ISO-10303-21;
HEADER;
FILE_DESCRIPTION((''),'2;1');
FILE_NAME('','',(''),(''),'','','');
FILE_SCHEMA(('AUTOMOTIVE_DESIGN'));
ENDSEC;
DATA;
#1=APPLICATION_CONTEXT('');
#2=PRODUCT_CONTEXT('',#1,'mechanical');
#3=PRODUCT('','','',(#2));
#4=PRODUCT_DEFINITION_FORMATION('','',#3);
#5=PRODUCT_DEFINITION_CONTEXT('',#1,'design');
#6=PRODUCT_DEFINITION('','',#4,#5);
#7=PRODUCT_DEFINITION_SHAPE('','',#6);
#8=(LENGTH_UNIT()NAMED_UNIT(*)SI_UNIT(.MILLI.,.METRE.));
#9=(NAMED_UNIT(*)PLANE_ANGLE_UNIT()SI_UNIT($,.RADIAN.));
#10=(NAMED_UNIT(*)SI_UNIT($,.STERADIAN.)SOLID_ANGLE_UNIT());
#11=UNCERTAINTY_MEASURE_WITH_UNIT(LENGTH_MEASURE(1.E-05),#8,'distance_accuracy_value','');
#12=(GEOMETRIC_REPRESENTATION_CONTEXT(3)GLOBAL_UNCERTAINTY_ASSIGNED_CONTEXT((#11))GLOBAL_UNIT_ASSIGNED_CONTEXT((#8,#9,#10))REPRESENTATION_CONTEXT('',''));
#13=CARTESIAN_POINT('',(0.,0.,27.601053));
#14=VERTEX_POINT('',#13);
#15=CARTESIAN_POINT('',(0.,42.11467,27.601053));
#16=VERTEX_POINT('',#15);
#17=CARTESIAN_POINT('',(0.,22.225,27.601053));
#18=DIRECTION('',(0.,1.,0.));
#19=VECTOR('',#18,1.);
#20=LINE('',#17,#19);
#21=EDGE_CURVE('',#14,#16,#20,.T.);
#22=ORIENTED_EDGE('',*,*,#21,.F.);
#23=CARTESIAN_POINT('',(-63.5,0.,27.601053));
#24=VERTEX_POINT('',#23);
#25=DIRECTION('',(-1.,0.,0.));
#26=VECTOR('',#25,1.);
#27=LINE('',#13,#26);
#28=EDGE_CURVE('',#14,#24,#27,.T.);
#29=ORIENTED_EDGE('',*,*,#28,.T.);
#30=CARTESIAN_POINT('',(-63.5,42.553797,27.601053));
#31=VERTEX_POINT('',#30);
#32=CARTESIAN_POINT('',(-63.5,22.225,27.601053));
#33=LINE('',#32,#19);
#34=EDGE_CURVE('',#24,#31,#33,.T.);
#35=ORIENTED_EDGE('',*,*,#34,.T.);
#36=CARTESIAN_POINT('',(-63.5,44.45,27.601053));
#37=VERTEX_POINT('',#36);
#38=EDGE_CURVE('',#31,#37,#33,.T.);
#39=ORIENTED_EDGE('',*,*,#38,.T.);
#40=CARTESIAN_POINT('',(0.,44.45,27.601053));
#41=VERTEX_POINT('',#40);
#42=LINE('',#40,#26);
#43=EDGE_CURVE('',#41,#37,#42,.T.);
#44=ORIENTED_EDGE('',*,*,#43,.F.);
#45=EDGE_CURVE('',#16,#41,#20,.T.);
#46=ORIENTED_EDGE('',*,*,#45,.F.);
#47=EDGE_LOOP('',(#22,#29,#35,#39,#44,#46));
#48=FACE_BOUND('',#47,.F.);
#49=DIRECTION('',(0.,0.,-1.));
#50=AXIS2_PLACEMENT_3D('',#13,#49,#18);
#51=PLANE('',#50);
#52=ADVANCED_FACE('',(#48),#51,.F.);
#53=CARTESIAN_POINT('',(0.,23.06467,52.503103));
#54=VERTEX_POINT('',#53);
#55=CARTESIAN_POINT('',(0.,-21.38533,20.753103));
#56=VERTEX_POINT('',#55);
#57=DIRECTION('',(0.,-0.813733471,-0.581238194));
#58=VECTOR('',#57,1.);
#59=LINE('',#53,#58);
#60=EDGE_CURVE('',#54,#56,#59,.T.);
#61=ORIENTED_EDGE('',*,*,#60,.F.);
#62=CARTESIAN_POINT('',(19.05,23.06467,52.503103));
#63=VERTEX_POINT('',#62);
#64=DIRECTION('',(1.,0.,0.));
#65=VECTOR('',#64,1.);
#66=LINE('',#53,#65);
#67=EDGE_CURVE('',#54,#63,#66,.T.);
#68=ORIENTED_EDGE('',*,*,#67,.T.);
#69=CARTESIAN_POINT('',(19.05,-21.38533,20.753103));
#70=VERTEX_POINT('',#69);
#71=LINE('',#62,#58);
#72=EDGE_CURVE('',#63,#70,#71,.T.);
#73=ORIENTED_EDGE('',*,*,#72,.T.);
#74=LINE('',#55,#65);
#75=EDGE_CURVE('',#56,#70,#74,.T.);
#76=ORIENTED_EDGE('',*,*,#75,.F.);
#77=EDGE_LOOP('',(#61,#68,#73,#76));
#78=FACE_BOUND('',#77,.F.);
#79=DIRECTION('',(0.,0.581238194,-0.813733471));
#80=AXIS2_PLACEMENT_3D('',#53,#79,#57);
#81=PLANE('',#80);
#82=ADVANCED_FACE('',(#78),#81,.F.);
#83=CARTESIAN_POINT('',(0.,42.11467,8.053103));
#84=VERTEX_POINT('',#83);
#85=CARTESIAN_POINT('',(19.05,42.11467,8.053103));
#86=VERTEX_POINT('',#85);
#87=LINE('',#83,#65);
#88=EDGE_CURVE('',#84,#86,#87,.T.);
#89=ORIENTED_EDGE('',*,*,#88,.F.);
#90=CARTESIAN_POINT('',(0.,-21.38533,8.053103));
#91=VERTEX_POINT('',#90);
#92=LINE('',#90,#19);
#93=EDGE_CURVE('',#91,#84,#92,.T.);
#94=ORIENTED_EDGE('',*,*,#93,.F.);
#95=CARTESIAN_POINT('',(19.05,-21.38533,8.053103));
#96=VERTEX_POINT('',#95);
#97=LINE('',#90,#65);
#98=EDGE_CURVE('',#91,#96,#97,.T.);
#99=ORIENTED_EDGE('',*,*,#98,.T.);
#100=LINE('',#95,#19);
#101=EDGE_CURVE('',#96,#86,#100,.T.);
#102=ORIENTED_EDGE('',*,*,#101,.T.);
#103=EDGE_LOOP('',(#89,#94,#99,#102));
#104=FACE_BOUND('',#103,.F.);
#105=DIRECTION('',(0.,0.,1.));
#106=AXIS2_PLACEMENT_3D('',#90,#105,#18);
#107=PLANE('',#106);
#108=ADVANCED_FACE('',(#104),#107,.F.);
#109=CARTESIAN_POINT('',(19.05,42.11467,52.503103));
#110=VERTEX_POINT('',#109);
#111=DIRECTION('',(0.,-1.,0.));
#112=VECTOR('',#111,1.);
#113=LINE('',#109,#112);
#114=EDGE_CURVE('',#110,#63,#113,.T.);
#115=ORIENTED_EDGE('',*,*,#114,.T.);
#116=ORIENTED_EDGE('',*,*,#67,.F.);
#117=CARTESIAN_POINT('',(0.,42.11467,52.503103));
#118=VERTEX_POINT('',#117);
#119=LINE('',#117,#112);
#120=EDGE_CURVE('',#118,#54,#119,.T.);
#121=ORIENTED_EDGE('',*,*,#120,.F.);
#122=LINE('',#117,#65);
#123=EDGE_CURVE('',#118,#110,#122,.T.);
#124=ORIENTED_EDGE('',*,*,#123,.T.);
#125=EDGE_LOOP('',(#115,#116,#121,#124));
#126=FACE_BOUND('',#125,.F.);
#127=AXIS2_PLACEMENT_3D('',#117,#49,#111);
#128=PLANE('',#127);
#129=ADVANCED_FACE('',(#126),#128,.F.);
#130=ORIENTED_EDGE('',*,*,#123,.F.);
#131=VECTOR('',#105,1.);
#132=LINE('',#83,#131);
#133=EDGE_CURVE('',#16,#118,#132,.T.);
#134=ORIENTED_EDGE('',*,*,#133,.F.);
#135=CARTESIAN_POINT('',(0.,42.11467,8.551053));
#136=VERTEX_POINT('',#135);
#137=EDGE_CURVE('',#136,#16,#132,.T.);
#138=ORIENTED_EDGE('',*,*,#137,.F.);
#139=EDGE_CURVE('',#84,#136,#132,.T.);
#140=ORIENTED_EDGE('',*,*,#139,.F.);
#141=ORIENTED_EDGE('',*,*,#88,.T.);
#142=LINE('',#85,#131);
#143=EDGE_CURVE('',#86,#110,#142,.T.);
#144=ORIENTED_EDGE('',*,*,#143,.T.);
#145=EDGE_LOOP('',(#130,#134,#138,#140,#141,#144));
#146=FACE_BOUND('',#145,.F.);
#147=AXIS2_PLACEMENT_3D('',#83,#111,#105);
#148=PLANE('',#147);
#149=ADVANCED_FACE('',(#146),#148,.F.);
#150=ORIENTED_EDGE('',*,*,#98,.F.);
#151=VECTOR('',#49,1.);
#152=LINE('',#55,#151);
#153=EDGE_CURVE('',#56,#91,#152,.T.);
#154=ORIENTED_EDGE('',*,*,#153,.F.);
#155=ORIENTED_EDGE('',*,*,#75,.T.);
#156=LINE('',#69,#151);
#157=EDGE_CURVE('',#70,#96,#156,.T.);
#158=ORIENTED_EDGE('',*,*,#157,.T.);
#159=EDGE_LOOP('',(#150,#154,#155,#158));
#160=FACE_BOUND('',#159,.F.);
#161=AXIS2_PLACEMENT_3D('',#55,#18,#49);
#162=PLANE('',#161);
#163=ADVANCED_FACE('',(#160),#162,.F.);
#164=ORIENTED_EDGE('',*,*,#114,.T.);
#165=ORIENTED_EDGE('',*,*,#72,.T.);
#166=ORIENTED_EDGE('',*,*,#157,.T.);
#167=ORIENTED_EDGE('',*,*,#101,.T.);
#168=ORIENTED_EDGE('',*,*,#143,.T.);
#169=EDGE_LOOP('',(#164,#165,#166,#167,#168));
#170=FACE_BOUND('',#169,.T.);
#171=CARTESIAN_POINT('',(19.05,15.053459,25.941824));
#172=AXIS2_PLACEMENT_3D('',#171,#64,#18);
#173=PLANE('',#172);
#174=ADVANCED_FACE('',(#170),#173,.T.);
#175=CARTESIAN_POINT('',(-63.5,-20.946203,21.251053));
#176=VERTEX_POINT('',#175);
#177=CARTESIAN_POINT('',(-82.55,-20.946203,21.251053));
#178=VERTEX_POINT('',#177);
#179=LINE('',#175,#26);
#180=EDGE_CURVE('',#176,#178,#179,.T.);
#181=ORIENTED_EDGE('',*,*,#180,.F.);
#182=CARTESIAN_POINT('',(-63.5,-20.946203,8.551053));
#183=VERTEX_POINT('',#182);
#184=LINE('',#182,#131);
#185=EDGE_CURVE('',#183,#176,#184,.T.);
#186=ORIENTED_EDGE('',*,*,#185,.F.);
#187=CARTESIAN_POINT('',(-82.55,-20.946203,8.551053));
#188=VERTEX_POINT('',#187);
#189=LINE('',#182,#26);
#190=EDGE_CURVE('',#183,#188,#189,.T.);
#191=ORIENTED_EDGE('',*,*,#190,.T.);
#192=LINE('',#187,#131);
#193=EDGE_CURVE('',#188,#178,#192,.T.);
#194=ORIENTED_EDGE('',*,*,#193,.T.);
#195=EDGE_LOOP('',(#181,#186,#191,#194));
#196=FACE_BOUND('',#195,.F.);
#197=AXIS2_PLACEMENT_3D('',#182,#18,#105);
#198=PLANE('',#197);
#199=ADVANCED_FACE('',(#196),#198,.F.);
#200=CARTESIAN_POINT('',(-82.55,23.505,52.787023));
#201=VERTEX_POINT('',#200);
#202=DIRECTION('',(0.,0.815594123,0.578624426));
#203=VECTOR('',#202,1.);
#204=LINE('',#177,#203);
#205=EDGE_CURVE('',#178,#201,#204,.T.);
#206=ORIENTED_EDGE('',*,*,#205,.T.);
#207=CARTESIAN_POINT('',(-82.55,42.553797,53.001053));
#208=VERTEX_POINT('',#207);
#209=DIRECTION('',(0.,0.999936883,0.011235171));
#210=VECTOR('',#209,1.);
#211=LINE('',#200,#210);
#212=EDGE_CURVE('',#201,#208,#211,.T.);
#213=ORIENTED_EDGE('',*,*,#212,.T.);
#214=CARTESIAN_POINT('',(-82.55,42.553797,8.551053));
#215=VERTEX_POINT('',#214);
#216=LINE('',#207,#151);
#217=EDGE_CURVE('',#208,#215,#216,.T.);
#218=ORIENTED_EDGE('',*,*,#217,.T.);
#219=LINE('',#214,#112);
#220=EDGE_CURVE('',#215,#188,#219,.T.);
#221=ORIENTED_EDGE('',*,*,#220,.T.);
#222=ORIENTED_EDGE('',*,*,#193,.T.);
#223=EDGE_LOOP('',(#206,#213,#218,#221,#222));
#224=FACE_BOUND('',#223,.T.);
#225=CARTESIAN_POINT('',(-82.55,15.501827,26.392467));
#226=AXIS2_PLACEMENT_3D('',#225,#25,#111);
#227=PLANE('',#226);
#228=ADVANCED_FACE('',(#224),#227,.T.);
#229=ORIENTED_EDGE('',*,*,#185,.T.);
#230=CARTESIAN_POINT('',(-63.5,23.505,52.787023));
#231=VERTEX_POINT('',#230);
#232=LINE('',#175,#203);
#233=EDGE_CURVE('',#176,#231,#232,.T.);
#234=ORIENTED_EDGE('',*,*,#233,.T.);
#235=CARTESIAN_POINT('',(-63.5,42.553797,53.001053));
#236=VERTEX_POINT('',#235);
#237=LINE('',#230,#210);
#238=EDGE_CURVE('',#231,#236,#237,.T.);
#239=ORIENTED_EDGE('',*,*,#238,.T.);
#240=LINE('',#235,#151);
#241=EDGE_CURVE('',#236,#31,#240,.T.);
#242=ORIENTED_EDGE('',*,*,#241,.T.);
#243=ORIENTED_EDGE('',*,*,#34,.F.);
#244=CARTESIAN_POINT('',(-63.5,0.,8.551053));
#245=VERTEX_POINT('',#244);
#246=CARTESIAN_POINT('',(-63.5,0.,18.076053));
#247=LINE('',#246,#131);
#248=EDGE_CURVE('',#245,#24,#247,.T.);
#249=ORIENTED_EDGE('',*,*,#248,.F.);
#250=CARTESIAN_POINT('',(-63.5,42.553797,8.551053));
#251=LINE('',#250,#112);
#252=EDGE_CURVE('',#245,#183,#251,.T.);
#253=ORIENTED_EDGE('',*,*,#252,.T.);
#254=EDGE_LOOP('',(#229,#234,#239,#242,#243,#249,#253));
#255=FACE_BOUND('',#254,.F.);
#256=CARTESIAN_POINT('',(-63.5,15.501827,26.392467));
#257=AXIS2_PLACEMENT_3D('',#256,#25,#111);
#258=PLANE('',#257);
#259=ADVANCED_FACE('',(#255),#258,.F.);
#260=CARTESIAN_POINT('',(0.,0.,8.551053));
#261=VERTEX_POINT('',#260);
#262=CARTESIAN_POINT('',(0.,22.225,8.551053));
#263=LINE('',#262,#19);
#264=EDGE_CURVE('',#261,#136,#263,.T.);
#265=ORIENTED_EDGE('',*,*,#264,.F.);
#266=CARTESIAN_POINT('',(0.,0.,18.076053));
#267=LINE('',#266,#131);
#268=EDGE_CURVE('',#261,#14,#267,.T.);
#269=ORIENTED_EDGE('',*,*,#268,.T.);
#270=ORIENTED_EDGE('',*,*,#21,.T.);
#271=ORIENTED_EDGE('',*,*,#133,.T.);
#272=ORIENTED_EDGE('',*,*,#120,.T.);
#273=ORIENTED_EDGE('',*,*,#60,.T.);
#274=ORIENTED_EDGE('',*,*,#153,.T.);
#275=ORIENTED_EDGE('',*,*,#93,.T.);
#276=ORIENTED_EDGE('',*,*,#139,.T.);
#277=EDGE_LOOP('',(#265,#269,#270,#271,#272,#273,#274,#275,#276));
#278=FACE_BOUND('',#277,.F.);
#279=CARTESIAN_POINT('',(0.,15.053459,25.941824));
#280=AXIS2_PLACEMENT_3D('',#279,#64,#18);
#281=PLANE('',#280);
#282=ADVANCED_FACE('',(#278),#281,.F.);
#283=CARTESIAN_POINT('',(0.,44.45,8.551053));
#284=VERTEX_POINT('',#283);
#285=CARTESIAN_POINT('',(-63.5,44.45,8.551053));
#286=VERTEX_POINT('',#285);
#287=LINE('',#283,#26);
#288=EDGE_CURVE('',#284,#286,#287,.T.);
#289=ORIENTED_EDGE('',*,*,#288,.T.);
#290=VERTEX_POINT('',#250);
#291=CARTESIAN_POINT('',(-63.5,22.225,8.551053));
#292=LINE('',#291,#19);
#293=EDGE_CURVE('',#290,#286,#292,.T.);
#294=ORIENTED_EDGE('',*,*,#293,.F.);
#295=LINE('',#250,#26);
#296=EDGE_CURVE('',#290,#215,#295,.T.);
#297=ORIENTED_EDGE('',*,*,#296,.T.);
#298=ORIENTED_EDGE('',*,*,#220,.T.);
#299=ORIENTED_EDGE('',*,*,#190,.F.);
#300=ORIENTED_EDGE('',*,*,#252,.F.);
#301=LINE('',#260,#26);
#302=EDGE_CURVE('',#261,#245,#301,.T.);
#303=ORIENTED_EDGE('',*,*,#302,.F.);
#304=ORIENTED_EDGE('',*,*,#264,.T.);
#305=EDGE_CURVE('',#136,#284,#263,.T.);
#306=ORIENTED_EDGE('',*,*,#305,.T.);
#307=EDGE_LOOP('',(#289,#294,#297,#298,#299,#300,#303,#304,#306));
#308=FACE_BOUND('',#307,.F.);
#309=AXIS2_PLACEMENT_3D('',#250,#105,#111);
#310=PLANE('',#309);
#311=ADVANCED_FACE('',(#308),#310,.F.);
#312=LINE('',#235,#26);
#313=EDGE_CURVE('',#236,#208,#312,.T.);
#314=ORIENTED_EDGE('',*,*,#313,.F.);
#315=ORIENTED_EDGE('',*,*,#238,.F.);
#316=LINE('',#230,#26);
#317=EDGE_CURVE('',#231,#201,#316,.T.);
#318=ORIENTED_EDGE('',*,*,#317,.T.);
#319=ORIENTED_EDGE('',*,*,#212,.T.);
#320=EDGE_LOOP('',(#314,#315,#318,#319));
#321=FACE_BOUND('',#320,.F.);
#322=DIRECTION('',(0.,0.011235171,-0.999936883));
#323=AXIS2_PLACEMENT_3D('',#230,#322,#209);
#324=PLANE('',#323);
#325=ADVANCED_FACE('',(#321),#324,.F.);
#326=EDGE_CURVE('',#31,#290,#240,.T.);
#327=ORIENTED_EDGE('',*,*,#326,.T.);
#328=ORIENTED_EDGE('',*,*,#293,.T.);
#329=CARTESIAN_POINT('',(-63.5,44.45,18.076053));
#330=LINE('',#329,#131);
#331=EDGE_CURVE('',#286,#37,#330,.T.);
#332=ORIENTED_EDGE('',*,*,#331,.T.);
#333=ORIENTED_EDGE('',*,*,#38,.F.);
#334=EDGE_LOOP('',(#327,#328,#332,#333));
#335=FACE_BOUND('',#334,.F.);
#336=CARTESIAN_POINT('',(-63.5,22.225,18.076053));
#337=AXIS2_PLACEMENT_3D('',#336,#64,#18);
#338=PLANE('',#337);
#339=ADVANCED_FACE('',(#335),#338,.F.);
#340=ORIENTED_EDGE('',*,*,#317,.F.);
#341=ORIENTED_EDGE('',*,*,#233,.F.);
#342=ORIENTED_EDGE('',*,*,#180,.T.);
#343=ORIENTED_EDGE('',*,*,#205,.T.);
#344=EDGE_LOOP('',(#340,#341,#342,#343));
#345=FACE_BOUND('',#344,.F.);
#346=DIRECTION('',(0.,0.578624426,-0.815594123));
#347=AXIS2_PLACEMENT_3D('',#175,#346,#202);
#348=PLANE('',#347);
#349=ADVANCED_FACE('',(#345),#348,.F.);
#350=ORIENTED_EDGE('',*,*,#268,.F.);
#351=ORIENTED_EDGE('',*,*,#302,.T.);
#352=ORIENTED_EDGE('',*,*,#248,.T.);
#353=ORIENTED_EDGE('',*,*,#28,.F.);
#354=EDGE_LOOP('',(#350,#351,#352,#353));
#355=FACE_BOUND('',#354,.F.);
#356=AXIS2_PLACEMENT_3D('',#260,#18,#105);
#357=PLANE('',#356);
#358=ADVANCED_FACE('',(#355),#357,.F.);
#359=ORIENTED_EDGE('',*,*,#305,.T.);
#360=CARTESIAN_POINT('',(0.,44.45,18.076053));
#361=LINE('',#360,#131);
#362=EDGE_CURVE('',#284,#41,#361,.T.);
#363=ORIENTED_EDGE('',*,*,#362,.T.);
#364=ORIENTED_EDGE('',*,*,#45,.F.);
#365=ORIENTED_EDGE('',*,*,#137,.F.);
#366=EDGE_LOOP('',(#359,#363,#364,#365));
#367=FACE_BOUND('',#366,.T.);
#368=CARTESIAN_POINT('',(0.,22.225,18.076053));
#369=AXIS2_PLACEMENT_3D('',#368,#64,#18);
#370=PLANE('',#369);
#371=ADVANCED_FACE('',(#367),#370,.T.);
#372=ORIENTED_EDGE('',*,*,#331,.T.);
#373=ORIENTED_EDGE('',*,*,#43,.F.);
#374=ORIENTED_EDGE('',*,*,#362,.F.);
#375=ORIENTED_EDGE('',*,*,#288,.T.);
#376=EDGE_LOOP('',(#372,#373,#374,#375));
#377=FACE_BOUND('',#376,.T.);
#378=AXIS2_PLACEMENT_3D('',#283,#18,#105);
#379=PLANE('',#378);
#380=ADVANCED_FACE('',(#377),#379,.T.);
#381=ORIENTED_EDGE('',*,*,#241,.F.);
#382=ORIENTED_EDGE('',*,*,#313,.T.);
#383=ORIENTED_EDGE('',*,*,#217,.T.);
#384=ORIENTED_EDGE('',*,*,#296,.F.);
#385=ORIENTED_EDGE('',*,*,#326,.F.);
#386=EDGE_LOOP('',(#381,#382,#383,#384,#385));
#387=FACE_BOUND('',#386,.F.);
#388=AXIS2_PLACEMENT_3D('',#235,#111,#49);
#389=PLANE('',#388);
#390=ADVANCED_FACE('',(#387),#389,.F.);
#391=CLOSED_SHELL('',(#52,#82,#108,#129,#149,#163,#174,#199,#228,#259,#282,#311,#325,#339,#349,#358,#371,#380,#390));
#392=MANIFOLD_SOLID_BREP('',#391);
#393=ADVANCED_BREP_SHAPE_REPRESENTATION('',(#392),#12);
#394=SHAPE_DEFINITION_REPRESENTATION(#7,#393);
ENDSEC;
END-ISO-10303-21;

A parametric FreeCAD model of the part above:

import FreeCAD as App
import Part
import Sketcher
Q = App.Units.Quantity


def add_polygon(sketch, points):
    """Adds a closed chain of lines whose ends are joined by coincident constraints."""
    first, n = sketch.GeometryCount, len(points)
    for a, b in zip(points, points[1:] + points[:1]):
        sketch.addGeometry(Part.LineSegment(App.Vector(*a, 0), App.Vector(*b, 0)), False)
    for i in range(n):
        sketch.addConstraint(Sketcher.Constraint("Coincident", first + i, 2, first + (i + 1) % n, 1))

doc = App.newDocument("Part")
body = doc.addObject("PartDesign::Body", "Body")

# Sketch on YZ plane
sketch1 = body.newObject("Sketcher::SketchObject", "Sketch")
sketch1.AttachmentSupport = (doc.getObject("YZ_Plane"), [""])
sketch1.MapMode = "FlatFace"
add_polygon(sketch1, [(0, 28), (0, 9), (44, 9), (44, 28)])  # lines 0-3
sketch1.addConstraint(Sketcher.Constraint("Vertical", 0))
sketch1.addConstraint(Sketcher.Constraint("Horizontal", 1))
sketch1.addConstraint(Sketcher.Constraint("Vertical", 2))
sketch1.addConstraint(Sketcher.Constraint("Horizontal", 3))
sketch1.addConstraint(Sketcher.Constraint("PointOnObject", 0, 2, -2))
sketch1.addConstraint(Sketcher.Constraint("DistanceX", 1, 1, 1, 2, Q("1.75 in")))
sketch1.addConstraint(Sketcher.Constraint("DistanceY", 0, 2, 0, 1, Q("0.75 in")))
sketch1.addConstraint(Sketcher.Constraint("DistanceY", -1, 1, 0, 2, 8.551053))
pad1 = body.newObject("PartDesign::Pad", "Pad")
pad1.Profile = sketch1
pad1.Length = Q("2.5 in")
pad1.Reversed = True

# Sketch on YZ plane
sketch2 = body.newObject("Sketcher::SketchObject", "Sketch001")
sketch2.AttachmentSupport = (doc.getObject("YZ_Plane"), [""])
sketch2.MapMode = "FlatFace"
add_polygon(sketch2, [(42, 53), (23, 53), (-21, 21), (-21, 8), (42, 8)])  # lines 0-4
sketch2.addConstraint(Sketcher.Constraint("Horizontal", 0))
sketch2.addConstraint(Sketcher.Constraint("Vertical", 2))
sketch2.addConstraint(Sketcher.Constraint("Horizontal", 3))
sketch2.addConstraint(Sketcher.Constraint("Vertical", 4))
sketch2.addConstraint(Sketcher.Constraint("DistanceX", 3, 1, 3, 2, Q("2.5 in")))
sketch2.addConstraint(Sketcher.Constraint("DistanceY", 2, 2, 2, 1, Q("0.5 in")))
sketch2.addConstraint(Sketcher.Constraint("DistanceX", 0, 2, 0, 1, Q("0.75 in")))
sketch2.addConstraint(Sketcher.Constraint("DistanceY", 4, 1, 4, 2, Q("1.75 in")))
sketch2.addConstraint(Sketcher.Constraint("DistanceX", -1, 1, 0, 2, 23.06467))
sketch2.addConstraint(Sketcher.Constraint("DistanceY", -1, 1, 0, 2, 52.503103))
pad2 = body.newObject("PartDesign::Pad", "Pad001")
pad2.Profile = sketch2
pad2.Length = Q("0.75 in")

# Sketch on YZ plane
sketch3 = body.newObject("Sketcher::SketchObject", "Sketch002")
sketch3.AttachmentSupport = (doc.getObject("YZ_Plane"), [""])
sketch3.MapMode = "FlatFace"
sketch3.AttachmentOffset = App.Placement(App.Vector(0, 0, -2.5 * 25.4), App.Rotation())
add_polygon(sketch3, [(24, 53), (43, 53), (43, 9), (-21, 9), (-21, 21)])  # lines 0-4
sketch3.addConstraint(Sketcher.Constraint("Vertical", 1))
sketch3.addConstraint(Sketcher.Constraint("Horizontal", 2))
sketch3.addConstraint(Sketcher.Constraint("Vertical", 3))
sketch3.addConstraint(Sketcher.Constraint("DistanceX", 2, 2, 2, 1, Q("2.5 in")))
sketch3.addConstraint(Sketcher.Constraint("DistanceY", 3, 1, 3, 2, Q("0.5 in")))
sketch3.addConstraint(Sketcher.Constraint("DistanceY", 1, 2, 1, 1, Q("1.75 in")))
sketch3.addConstraint(Sketcher.Constraint("Distance", 0, Q("0.75 in")))
sketch3.addConstraint(Sketcher.Constraint("DistanceX", -1, 1, 4, 2, 23.505))
sketch3.addConstraint(Sketcher.Constraint("DistanceY", 4, 2, 0, 2, 0.21403))
sketch3.addConstraint(Sketcher.Constraint("DistanceY", -1, 1, 0, 2, 53.001053))
pad3 = body.newObject("PartDesign::Pad", "Pad002")
pad3.Profile = sketch3
pad3.Length = Q("0.75 in")
pad3.Reversed = True

doc.recompute()
